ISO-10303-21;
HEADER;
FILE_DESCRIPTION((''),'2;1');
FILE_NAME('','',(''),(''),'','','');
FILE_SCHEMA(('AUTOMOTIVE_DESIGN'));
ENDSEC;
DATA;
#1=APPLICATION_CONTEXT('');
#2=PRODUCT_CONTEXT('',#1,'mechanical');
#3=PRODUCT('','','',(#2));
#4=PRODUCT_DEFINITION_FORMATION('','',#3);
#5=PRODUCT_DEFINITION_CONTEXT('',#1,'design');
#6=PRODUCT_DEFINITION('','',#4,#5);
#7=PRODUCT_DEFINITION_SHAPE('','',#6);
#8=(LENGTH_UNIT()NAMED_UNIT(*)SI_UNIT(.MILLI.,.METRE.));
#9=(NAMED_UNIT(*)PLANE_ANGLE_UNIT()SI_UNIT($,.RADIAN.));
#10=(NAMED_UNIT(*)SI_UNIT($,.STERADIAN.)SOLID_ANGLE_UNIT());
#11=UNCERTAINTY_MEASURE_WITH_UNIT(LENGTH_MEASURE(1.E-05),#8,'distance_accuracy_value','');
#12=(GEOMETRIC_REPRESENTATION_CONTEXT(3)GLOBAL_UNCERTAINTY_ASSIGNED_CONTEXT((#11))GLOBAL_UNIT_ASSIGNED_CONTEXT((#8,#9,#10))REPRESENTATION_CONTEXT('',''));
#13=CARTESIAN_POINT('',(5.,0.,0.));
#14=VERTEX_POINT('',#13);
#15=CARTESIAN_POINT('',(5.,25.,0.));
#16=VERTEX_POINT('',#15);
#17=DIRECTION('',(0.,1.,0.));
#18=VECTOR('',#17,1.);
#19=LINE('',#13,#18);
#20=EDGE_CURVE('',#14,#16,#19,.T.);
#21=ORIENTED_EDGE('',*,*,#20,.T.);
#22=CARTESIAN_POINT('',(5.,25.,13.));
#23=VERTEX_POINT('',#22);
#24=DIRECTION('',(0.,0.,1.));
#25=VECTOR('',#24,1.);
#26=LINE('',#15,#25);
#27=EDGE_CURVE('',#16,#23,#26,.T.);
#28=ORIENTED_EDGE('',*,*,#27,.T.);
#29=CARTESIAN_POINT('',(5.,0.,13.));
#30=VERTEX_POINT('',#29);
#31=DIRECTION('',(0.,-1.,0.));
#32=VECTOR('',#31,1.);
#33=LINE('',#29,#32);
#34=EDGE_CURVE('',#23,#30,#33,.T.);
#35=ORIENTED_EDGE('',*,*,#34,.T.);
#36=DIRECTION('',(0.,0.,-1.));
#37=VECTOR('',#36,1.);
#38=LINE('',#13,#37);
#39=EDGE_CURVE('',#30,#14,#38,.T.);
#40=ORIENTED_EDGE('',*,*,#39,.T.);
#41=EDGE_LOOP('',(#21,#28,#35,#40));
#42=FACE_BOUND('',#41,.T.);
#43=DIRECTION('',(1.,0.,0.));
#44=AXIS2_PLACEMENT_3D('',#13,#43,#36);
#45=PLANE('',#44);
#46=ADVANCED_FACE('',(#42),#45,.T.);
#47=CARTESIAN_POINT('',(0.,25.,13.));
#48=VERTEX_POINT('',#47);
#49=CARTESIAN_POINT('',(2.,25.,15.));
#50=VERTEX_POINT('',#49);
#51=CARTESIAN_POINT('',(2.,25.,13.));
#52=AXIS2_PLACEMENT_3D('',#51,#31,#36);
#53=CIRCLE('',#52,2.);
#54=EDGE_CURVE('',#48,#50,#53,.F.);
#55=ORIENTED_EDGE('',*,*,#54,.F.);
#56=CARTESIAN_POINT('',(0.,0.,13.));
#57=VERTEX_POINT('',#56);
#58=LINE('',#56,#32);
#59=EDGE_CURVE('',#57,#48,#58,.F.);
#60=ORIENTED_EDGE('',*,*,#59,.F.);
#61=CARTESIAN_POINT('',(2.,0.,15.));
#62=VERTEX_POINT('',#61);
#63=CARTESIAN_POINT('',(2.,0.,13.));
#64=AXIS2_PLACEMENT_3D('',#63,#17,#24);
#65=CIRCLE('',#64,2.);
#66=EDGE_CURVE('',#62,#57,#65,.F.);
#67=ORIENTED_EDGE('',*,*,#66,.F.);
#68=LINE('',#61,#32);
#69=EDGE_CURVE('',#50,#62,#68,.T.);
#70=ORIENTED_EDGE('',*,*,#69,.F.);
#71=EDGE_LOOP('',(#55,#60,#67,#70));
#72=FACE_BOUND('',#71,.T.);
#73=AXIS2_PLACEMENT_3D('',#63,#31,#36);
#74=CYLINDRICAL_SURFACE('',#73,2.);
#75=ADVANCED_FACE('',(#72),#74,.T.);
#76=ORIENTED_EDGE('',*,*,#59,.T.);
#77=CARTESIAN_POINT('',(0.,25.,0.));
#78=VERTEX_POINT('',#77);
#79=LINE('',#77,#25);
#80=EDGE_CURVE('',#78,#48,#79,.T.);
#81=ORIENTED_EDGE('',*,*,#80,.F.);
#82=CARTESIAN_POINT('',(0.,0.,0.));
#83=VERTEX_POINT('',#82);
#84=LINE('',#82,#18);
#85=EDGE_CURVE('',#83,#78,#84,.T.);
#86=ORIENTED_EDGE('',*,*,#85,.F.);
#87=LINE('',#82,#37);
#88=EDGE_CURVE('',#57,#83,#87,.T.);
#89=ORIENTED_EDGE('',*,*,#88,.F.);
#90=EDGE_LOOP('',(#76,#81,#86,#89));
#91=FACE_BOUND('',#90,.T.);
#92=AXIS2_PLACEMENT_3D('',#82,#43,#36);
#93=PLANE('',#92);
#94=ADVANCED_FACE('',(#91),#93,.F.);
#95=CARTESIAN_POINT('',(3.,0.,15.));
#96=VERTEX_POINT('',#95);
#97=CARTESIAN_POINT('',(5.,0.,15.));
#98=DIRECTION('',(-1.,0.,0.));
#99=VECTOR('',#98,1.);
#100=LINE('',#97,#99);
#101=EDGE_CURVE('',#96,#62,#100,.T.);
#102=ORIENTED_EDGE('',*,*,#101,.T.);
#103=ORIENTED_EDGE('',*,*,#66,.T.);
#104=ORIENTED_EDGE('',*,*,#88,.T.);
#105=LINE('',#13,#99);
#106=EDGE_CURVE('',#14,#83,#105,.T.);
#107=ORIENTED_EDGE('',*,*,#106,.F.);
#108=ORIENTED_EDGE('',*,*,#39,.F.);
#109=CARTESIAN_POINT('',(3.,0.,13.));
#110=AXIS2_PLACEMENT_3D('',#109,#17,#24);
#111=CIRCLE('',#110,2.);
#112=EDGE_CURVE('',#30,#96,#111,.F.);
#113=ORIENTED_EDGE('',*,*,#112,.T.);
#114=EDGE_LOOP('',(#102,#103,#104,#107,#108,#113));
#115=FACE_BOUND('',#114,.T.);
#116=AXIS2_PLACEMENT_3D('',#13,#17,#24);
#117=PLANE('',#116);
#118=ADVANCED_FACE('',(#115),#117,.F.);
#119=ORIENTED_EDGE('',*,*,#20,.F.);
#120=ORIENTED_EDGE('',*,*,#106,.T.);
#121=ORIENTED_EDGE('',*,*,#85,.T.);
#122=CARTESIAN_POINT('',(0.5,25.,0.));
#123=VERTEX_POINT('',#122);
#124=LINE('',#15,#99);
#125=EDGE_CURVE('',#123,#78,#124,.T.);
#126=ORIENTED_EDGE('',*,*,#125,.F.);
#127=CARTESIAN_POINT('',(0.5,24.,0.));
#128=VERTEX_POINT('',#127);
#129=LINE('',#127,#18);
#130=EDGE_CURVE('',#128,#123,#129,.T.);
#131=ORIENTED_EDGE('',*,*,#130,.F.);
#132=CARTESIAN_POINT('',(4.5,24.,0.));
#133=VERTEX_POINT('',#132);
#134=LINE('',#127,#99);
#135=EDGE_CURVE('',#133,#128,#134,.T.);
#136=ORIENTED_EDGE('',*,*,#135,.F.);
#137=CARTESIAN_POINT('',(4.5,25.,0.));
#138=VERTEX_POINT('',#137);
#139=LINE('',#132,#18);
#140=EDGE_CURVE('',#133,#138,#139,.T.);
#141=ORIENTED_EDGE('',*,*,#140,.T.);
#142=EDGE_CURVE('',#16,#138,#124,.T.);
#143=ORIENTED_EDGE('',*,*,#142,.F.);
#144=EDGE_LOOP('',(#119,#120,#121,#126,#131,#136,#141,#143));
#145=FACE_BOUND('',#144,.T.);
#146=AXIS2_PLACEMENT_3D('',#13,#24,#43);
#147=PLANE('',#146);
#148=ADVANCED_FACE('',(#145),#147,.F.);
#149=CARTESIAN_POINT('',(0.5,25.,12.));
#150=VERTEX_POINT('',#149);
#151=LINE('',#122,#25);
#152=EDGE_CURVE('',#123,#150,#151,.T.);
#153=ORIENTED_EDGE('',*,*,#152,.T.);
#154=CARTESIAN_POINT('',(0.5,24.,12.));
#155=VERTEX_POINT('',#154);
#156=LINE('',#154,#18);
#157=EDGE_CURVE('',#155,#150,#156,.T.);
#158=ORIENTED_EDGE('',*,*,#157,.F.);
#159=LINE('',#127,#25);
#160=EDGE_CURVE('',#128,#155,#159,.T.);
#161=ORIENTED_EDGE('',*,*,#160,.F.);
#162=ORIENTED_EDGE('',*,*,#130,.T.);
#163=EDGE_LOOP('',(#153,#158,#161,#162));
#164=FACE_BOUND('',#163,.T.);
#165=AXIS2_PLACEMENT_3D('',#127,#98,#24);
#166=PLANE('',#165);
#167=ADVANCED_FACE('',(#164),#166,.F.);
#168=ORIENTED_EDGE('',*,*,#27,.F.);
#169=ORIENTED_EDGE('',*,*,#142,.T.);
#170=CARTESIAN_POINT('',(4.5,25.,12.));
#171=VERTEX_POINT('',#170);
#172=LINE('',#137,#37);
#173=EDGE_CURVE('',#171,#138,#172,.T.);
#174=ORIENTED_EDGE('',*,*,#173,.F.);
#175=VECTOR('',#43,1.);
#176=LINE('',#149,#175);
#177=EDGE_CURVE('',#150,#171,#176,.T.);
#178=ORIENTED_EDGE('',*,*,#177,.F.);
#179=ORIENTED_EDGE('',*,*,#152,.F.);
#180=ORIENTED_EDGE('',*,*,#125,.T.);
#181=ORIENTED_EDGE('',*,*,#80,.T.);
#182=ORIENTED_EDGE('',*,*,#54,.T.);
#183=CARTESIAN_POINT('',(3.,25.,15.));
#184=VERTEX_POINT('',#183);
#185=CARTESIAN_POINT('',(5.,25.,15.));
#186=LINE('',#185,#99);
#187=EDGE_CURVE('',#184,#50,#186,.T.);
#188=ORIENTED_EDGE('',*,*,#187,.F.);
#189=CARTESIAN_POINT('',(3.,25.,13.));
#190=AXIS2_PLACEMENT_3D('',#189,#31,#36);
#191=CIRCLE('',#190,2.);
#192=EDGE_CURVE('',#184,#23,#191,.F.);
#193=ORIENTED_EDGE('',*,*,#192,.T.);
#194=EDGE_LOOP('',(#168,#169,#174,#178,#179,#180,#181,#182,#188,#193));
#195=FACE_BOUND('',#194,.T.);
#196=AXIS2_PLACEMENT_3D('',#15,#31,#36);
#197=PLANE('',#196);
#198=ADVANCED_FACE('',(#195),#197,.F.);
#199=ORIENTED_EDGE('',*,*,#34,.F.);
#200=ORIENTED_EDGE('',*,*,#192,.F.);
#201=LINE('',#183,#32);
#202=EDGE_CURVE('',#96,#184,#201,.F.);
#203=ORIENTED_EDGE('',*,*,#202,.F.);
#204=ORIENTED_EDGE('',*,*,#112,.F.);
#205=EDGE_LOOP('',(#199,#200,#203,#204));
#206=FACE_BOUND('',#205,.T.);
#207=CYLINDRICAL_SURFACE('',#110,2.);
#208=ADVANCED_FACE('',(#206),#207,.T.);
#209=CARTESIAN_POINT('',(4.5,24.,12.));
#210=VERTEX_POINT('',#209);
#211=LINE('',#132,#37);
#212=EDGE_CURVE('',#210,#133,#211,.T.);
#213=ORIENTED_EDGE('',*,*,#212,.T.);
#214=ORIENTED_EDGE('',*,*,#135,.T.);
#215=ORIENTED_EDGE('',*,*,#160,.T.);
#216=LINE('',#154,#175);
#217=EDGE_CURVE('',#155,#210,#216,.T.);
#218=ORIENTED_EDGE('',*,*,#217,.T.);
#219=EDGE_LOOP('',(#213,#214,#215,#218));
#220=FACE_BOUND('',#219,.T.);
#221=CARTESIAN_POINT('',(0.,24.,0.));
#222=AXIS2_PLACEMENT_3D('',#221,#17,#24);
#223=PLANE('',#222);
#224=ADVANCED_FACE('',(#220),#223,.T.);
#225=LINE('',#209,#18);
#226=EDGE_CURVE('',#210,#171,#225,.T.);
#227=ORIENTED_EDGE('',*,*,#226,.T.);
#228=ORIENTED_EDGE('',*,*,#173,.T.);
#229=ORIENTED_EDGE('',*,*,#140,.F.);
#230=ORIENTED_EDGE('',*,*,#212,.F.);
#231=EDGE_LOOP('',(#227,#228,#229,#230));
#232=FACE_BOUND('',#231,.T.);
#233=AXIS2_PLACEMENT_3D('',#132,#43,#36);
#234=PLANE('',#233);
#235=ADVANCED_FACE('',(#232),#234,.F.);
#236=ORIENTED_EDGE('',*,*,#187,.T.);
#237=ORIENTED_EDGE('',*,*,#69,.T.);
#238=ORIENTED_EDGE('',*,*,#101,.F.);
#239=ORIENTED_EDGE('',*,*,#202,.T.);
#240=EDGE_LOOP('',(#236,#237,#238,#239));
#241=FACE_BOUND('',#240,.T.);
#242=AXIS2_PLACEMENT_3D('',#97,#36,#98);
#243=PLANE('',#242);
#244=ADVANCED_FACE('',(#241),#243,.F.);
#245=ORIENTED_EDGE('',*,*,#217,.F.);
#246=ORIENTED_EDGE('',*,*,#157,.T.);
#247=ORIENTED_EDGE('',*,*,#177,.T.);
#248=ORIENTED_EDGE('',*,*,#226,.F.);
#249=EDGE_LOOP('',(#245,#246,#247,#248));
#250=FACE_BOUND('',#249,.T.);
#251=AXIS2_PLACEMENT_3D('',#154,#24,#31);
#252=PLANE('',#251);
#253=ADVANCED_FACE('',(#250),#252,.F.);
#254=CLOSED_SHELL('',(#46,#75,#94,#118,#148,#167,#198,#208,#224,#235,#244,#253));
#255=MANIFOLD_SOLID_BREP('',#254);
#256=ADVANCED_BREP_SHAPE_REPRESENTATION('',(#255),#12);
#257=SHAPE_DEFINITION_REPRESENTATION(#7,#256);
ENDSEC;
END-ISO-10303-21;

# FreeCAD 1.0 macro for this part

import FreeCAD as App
import Part
import Sketcher
from FreeCAD import Vector


def edges_at(feature, points):
    """Names of the edges that pass closest to the given points."""
    edges = feature.Shape.Edges
    near = lambda p: min(range(len(edges)), key=lambda i: edges[i].distToShape(Part.Vertex(*p))[0])
    return sorted({f"Edge{near(p) + 1}" for p in points})


def add_polygon(sketch, points):
    """Adds a closed chain of lines whose ends are joined by coincident constraints."""
    first, n = sketch.GeometryCount, len(points)
    for a, b in zip(points, points[1:] + points[:1]):
        sketch.addGeometry(Part.LineSegment(App.Vector(*a, 0), App.Vector(*b, 0)), False)
    for i in range(n):
        sketch.addConstraint(Sketcher.Constraint("Coincident", first + i, 2, first + (i + 1) % n, 1))

doc = App.newDocument("Part")
body = doc.addObject("PartDesign::Body", "Body")

# Sketch on YZ plane
sketch1 = body.newObject("Sketcher::SketchObject", "Sketch")
sketch1.AttachmentSupport = (doc.getObject("YZ_Plane"), [""])
sketch1.MapMode = "FlatFace"
add_polygon(sketch1, [(25, 15), (0, 15), (0, 0), (25, 0)])  # lines 0-3
sketch1.addConstraint(Sketcher.Constraint("Horizontal", 0))
sketch1.addConstraint(Sketcher.Constraint("Vertical", 1))
sketch1.addConstraint(Sketcher.Constraint("Horizontal", 2))
sketch1.addConstraint(Sketcher.Constraint("Vertical", 3))
sketch1.addConstraint(Sketcher.Constraint("Coincident", 1, 2, -1, 1))
sketch1.addConstraint(Sketcher.Constraint("DistanceX", 0, 2, 0, 1, 25.0))
sketch1.addConstraint(Sketcher.Constraint("DistanceY", 1, 2, 1, 1, 15.0))
pad1 = body.newObject("PartDesign::Pad", "Pad")
pad1.Profile = sketch1
pad1.Length = 5
doc.recompute()

fillet = body.newObject("PartDesign::Fillet", "Fillet")
fillet.Base = (pad1, edges_at(pad1, [(5, 12.5, 15), (0, 12.5, 15)]))
fillet.Radius = 2

# Sketch on XZ plane
sketch2 = body.newObject("Sketcher::SketchObject", "Sketch001")
sketch2.AttachmentSupport = (doc.getObject("XZ_Plane"), [""])
sketch2.MapMode = "FlatFace"
sketch2.AttachmentOffset = App.Placement(Vector(0, 0, -25), App.Rotation())
add_polygon(sketch2, [(0.5, 0), (0.5, 12), (4.5, 12), (4.5, 0)])  # lines 0-3
sketch2.addConstraint(Sketcher.Constraint("Vertical", 0))
sketch2.addConstraint(Sketcher.Constraint("Horizontal", 1))
sketch2.addConstraint(Sketcher.Constraint("Vertical", 2))
sketch2.addConstraint(Sketcher.Constraint("Horizontal", 3))
sketch2.addConstraint(Sketcher.Constraint("PointOnObject", 2, 2, -1))
sketch2.addConstraint(Sketcher.Constraint("DistanceX", 1, 1, 1, 2, 4.0))
sketch2.addConstraint(Sketcher.Constraint("DistanceY", 0, 1, 0, 2, 12.0))
sketch2.addConstraint(Sketcher.Constraint("DistanceX", -1, 1, 0, 2, 0.5))
pocket1 = body.newObject("PartDesign::Pocket", "Pocket")
pocket1.Profile = sketch2
pocket1.Length = 1
pocket1.Reversed = True

doc.recompute()
